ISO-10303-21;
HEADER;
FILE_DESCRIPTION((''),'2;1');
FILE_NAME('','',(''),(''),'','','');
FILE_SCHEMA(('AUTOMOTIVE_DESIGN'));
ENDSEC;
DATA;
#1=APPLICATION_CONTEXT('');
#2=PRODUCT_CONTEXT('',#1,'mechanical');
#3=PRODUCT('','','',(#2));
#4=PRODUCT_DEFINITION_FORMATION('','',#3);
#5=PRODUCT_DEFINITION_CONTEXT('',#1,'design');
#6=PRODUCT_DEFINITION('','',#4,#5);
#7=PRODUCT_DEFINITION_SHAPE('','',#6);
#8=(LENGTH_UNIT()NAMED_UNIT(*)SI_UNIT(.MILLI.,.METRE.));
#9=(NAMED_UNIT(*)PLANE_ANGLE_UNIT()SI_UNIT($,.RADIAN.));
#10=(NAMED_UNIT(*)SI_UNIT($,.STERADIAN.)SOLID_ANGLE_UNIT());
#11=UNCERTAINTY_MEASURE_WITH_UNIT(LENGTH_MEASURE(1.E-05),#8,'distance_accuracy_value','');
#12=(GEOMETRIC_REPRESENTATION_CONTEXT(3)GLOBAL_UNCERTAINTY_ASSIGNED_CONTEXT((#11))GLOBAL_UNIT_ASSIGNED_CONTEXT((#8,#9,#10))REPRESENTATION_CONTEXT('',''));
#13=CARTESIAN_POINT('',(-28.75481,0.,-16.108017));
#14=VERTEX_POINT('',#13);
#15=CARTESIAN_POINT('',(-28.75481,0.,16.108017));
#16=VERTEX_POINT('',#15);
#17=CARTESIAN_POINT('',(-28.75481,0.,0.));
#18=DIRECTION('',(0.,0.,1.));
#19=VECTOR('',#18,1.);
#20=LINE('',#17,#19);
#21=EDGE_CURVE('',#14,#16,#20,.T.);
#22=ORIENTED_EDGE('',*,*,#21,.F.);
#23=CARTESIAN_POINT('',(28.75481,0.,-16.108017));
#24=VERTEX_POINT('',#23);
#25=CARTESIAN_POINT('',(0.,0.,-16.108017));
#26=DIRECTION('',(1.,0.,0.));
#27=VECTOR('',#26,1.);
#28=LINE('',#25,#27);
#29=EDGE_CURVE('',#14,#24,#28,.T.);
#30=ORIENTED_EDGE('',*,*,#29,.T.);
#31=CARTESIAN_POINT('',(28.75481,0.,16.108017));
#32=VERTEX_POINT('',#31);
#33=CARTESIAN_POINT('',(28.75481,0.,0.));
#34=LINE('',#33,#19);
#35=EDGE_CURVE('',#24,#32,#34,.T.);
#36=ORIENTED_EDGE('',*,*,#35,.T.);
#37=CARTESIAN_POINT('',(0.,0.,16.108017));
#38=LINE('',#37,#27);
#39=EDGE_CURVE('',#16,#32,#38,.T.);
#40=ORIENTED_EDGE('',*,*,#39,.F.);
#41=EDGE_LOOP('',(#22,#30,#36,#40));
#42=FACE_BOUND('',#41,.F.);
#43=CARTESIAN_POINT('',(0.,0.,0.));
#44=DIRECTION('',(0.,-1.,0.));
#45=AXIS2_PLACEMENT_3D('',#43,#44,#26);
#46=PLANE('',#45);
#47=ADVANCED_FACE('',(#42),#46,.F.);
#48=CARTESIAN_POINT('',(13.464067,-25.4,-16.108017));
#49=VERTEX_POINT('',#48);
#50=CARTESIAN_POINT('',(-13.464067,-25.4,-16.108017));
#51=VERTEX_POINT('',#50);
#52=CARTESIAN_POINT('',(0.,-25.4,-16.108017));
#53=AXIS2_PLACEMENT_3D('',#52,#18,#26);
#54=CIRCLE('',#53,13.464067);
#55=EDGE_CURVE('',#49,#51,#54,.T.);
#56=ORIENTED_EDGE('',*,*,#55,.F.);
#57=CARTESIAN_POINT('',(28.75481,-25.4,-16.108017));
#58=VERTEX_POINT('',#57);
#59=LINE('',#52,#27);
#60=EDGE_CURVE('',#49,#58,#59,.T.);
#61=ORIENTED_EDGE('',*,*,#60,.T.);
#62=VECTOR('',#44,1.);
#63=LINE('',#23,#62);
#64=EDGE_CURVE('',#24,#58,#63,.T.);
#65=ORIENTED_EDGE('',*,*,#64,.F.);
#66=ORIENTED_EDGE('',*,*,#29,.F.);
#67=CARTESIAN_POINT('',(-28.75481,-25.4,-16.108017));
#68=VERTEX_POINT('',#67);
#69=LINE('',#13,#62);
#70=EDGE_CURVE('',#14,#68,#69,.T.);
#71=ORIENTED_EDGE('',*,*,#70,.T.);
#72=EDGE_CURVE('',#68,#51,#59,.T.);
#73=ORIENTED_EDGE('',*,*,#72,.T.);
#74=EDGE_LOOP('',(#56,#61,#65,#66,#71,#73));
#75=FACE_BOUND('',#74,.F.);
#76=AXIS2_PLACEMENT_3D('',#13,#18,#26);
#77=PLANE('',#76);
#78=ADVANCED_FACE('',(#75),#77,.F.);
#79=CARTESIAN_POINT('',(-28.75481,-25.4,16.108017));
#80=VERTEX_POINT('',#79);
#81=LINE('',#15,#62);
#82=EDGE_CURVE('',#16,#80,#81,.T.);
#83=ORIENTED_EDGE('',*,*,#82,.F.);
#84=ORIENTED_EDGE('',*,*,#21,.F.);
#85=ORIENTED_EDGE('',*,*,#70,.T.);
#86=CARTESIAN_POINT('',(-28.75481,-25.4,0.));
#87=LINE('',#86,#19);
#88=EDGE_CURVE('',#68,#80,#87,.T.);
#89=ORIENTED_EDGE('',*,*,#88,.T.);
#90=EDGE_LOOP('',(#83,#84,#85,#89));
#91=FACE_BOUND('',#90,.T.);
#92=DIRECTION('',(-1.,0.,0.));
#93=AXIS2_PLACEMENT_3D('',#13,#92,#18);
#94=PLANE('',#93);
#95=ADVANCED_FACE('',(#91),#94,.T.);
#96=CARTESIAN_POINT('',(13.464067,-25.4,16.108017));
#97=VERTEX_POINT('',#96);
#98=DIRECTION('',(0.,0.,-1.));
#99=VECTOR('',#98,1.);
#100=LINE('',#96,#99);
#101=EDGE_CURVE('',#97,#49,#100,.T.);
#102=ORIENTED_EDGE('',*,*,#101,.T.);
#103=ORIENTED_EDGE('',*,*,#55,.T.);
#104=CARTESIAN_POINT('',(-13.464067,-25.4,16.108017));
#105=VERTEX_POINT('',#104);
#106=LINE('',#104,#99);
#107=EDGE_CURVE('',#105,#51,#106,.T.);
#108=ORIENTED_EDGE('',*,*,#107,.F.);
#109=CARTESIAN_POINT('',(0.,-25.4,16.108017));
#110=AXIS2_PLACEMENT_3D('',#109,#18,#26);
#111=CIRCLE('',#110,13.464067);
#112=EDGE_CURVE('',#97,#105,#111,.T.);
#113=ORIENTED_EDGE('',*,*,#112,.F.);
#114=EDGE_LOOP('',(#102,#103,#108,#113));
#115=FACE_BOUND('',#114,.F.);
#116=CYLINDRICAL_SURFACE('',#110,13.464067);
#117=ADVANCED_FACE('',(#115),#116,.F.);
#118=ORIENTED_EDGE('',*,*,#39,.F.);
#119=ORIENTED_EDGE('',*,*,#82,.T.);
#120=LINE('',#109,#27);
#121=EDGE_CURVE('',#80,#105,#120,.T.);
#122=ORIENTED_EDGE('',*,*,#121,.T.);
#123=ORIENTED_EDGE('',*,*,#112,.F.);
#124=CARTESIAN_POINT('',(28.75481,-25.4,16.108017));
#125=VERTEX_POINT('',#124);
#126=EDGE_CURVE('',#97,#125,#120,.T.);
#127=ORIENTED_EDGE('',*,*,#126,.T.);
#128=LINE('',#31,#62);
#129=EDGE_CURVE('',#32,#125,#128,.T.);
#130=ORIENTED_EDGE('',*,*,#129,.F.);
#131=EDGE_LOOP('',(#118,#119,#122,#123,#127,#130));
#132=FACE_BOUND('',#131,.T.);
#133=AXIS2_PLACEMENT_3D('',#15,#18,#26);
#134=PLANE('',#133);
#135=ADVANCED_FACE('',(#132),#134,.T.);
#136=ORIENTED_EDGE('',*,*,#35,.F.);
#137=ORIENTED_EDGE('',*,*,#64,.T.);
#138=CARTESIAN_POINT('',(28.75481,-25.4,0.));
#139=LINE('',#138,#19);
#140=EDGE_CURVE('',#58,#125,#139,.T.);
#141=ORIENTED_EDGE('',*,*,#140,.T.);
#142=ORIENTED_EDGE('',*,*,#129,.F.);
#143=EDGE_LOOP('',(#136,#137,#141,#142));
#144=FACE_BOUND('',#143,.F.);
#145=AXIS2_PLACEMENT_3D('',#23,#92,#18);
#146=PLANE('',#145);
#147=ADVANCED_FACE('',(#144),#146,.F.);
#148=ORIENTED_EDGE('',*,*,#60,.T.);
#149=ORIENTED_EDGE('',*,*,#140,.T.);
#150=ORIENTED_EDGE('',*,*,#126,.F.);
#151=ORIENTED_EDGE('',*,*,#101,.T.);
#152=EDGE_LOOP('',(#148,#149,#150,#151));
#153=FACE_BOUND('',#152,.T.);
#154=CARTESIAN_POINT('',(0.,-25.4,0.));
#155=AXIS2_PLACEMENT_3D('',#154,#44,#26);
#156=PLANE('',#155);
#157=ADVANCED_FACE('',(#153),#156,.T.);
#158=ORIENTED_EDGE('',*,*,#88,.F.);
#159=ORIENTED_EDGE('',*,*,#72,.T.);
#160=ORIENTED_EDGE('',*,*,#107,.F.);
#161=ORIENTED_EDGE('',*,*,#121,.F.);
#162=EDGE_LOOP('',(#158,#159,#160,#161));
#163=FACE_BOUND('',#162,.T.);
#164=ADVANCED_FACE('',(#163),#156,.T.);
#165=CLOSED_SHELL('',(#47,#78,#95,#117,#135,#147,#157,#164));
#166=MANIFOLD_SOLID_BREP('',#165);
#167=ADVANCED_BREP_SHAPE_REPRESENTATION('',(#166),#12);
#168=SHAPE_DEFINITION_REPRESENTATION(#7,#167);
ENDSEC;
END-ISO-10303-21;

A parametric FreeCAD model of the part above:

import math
import FreeCAD as App
import Part
import Sketcher
Q = App.Units.Quantity


def add_polygon(sketch, points):
    """Adds a closed chain of lines whose ends are joined by coincident constraints."""
    first, n = sketch.GeometryCount, len(points)
    for a, b in zip(points, points[1:] + points[:1]):
        sketch.addGeometry(Part.LineSegment(App.Vector(*a, 0), App.Vector(*b, 0)), False)
    for i in range(n):
        sketch.addConstraint(Sketcher.Constraint("Coincident", first + i, 2, first + (i + 1) % n, 1))

doc = App.newDocument("Part")
body = doc.addObject("PartDesign::Body", "Body")

sketch1 = doc.addObject("Sketcher::SketchObject", "Sketch")
body.addObject(sketch1)
sketch1.AttachmentSupport = (doc.XZ_Plane, [""])
sketch1.MapMode = "FlatFace"
add_polygon(sketch1, [(-29, 16), (-29, -16), (29, -16), (29, 16)])
sketch1.addConstraint([
    Sketcher.Constraint("Vertical", 0),
    Sketcher.Constraint("Horizontal", 1),
    Sketcher.Constraint("Vertical", 2),
    Sketcher.Constraint("Horizontal", 3),
    Sketcher.Constraint("Symmetric", 0, 2, 2, 2, -1, 1),
    Sketcher.Constraint("DistanceX", 1, 1, 1, 2, 57.50962),
    Sketcher.Constraint("DistanceY", 0, 2, 0, 1, 32.216034),
])
pad1 = doc.addObject("PartDesign::Pad", "Pad")
body.addObject(pad1)
pad1.Profile = sketch1
pad1.Length = Q("1 in")

sketch2 = doc.addObject("Sketcher::SketchObject", "Sketch001")
body.addObject(sketch2)
sketch2.AttachmentSupport = (doc.XY_Plane, [""])
sketch2.MapMode = "FlatFace"
sketch2.AttachmentOffset = App.Placement(App.Vector(0, 0, 16.108017), App.Rotation())
sketch2.addGeometry([
    Part.LineSegment(App.Vector(-13, -25, 0), App.Vector(13, -25, 0)),
    Part.ArcOfCircle(Part.Circle(App.Vector(0, -25, 0), App.Vector(0, 0, 1), 13), math.radians(0), math.radians(180)),
], False)
sketch2.addConstraint([
    Sketcher.Constraint("Coincident", 0, 1, 1, 2),
    Sketcher.Constraint("Coincident", 1, 1, 0, 2),
    Sketcher.Constraint("Horizontal", 0),
    Sketcher.Constraint("PointOnObject", 1, 3, -2),
    Sketcher.Constraint("Horizontal", 1, 3, 0, 1),
    Sketcher.Constraint("DistanceY", 1, 3, -1, 1, Q("1 in")),
    Sketcher.Constraint("Radius", 1, 13.464067),
])
pocket1 = doc.addObject("PartDesign::Pocket", "Pocket")
body.addObject(pocket1)
pocket1.Profile = sketch2
pocket1.Type = "ThroughAll"

doc.recompute()
